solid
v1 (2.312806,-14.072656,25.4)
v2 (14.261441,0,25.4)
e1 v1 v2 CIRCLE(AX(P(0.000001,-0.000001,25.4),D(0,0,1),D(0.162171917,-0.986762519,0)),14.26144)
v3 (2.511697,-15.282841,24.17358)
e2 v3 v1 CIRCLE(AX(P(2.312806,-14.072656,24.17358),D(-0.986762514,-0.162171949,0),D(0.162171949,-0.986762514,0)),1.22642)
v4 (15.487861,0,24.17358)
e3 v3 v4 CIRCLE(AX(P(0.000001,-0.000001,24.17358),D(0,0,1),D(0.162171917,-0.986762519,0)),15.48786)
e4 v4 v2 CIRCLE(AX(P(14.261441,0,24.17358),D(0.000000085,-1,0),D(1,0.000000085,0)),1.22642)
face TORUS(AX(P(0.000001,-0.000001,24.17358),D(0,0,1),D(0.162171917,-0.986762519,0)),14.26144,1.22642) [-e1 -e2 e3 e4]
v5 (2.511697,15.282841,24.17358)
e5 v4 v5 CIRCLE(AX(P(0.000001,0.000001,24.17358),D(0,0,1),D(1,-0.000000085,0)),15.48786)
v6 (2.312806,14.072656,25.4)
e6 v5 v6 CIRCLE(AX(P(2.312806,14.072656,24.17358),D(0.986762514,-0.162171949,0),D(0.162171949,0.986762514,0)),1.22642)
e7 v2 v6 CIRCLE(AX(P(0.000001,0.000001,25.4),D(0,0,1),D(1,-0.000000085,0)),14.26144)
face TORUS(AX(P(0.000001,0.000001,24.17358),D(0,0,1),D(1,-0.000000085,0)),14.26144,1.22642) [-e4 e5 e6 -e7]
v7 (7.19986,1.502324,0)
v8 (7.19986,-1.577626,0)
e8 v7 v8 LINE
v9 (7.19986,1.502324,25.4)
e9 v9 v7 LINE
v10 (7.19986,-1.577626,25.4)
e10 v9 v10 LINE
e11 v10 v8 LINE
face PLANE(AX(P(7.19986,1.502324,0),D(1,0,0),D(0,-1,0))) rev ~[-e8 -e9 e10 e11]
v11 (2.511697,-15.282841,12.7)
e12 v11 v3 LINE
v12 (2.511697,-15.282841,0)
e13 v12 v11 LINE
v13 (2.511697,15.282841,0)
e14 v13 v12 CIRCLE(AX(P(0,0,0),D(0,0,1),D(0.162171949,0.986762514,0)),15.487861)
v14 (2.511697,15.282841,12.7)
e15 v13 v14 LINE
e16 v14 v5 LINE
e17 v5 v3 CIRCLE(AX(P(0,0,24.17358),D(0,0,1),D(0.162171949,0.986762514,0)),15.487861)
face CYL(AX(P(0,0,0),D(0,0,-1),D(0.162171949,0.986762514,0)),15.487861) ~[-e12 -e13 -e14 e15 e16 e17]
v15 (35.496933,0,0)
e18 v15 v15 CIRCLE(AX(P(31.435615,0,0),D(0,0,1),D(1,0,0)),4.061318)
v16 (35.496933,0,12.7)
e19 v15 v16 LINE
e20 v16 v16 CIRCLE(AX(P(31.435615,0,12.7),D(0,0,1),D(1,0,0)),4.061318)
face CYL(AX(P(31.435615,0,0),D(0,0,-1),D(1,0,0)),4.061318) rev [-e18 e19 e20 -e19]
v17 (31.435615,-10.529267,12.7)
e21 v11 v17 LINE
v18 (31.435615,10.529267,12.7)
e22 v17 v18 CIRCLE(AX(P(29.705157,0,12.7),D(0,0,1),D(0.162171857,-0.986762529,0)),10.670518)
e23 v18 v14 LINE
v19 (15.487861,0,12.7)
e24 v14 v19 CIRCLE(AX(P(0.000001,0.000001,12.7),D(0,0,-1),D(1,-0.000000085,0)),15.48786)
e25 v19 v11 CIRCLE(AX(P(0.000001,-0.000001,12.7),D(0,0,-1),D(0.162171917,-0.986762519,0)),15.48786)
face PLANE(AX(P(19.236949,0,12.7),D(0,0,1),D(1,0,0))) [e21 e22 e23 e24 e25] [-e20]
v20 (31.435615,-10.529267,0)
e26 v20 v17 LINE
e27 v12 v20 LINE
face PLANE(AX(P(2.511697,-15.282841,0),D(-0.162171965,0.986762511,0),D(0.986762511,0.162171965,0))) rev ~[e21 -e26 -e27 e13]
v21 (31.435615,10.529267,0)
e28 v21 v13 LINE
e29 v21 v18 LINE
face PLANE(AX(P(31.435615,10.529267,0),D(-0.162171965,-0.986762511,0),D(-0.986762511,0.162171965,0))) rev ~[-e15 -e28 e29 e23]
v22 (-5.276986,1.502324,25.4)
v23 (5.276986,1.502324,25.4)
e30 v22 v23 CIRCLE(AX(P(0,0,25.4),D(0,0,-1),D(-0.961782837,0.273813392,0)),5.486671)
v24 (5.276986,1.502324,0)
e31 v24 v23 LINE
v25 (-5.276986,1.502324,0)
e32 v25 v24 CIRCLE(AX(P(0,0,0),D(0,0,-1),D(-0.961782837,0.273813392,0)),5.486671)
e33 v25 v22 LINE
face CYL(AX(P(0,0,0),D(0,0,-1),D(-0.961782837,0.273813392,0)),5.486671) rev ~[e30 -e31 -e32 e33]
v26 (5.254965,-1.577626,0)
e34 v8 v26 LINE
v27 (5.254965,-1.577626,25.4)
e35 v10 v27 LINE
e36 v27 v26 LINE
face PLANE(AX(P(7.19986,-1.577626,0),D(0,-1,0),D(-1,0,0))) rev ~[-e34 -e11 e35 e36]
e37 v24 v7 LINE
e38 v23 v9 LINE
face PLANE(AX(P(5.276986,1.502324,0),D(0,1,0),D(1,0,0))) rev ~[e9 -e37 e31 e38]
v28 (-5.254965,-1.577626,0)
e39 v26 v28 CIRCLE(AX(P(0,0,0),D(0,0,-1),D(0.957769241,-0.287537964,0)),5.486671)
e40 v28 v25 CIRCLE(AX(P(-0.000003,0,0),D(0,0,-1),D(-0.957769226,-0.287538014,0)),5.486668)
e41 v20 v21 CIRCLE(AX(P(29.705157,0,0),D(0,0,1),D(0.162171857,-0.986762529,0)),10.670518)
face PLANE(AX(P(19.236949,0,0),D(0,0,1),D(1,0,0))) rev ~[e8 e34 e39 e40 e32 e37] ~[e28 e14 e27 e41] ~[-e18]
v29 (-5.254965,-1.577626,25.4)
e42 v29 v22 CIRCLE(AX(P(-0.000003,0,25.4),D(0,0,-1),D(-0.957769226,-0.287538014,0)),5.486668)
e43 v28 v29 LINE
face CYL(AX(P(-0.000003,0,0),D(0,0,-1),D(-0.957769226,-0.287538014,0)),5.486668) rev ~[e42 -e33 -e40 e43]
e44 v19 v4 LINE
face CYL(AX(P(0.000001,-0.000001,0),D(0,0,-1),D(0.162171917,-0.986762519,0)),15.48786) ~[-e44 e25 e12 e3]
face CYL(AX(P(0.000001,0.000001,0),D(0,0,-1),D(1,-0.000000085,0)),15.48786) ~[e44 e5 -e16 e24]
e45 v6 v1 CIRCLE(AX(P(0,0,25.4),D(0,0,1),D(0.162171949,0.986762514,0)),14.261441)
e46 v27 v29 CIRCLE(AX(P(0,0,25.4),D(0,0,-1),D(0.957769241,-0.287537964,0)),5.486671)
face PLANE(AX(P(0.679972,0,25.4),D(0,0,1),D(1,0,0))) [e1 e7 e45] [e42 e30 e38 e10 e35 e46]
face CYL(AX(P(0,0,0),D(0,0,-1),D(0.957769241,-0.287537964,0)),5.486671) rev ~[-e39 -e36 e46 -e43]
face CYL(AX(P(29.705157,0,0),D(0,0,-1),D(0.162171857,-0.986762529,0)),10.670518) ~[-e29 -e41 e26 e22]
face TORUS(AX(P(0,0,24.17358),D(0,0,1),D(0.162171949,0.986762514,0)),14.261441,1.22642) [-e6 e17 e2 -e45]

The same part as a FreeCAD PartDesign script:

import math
import FreeCAD as App
import Part
import Sketcher
from FreeCAD import Vector
Q = App.Units.Quantity


def edges_at(feature, points):
    """Names of the edges that pass closest to the given points."""
    edges = feature.Shape.Edges
    near = lambda p: min(range(len(edges)), key=lambda i: edges[i].distToShape(Part.Vertex(*p))[0])
    return sorted({f"Edge{near(p) + 1}" for p in points})

doc = App.newDocument("Part")
params = doc.addObject("Spreadsheet::Sheet", "Params")
for row, (alias, value) in enumerate([
    ("pad1_length", "0.5 in"),
    ("pad2_length", "1 in"),
    ("fillet_radius", "1.22642 mm"),
], start=1):
    params.set(f"A{row}", alias)
    params.set(f"B{row}", "=" + value)
    params.setAlias(f"B{row}", alias)

body = doc.addObject("PartDesign::Body", "Body")

sketch1 = body.newObject("Sketcher::SketchObject", "Sketch")
sketch1.AttachmentSupport = (doc.getObject("XY_Plane"), [""])
sketch1.MapMode = "FlatFace"
sketch1.addGeometry([
    Part.LineSegment(Vector(31.435615, 10.529267, 0), Vector(2.511697, 15.282841, 0)),
    Part.ArcOfCircle(Part.Circle(Vector(0, 0, 0), Vector(0, 0, 1), 15.487861), math.radians(80.667014), math.radians(279.332986)),
    Part.LineSegment(Vector(2.511697, -15.282841, 0), Vector(31.435615, -10.529267, 0)),
    Part.ArcOfCircle(Part.Circle(Vector(29.705157, 0, 0), Vector(0, 0, 1), 10.670518), math.radians(-80.667019), math.radians(80.667019)),
    Part.ArcOfCircle(Part.Circle(Vector(0, 0, 0), Vector(0, 0, 1), 5.486671), math.radians(-163.289385), math.radians(-16.710615)),
    Part.ArcOfCircle(Part.Circle(Vector(-0.000003, 0, 0), Vector(0, 0, 1), 5.486668), math.radians(164.108674), math.radians(196.710618)),
    Part.ArcOfCircle(Part.Circle(Vector(0, 0, 0), Vector(0, 0, 1), 5.486671), math.radians(15.891313), math.radians(164.108687)),
    Part.LineSegment(Vector(5.276986, 1.502324, 0), Vector(7.19986, 1.502324, 0)),
    Part.LineSegment(Vector(7.19986, 1.502324, 0), Vector(7.19986, -1.577626, 0)),
    Part.LineSegment(Vector(7.19986, -1.577626, 0), Vector(5.254965, -1.577626, 0)),
    Part.Circle(Vector(31.435615, 0, 0), Vector(0, 0, 1), 4.061318),
], False)
sketch1.addConstraint([
    Sketcher.Constraint("Coincident", 0, 2, 1, 1),
    Sketcher.Constraint("Coincident", 1, 2, 2, 1),
    Sketcher.Constraint("Coincident", 2, 2, 3, 1),
    Sketcher.Constraint("Coincident", 3, 2, 0, 1),
    Sketcher.Constraint("Coincident", 4, 1, 5, 2),
    Sketcher.Constraint("Coincident", 5, 1, 6, 2),
    Sketcher.Constraint("Coincident", 6, 1, 7, 1),
    Sketcher.Constraint("Coincident", 7, 2, 8, 1),
    Sketcher.Constraint("Coincident", 8, 2, 9, 1),
    Sketcher.Constraint("Coincident", 9, 2, 4, 2),
    Sketcher.Constraint("Horizontal", 7),
    Sketcher.Constraint("Vertical", 8),
    Sketcher.Constraint("Horizontal", 9),
    Sketcher.Constraint("Coincident", 1, 3, -1, 1),
    Sketcher.Constraint("Coincident", 4, 3, -1, 1),
    Sketcher.Constraint("Coincident", 5, 3, -1, 1),
    Sketcher.Constraint("Coincident", 6, 3, -1, 1),
    Sketcher.Constraint("PointOnObject", 3, 3, -1),
    Sketcher.Constraint("PointOnObject", 10, 3, -1),
    Sketcher.Constraint("Radius", 1, Q("15.487861 mm")),
    Sketcher.Constraint("Radius", 4, Q("5.486671 mm")),
    Sketcher.Constraint("Diameter", 10, Q("8.122636 mm")),
    Sketcher.Constraint("Radius", 3, Q("10.670518 mm")),
    Sketcher.Constraint("DistanceY", 8, 2, 8, 1, Q("3.07995 mm")),
    Sketcher.Constraint("DistanceX", 5, 3, 0, 2, Q("2.5117 mm")),
    Sketcher.Constraint("DistanceX", 5, 3, 1, 2, Q("2.5117 mm")),
    Sketcher.Constraint("DistanceX", 7, 1, 7, 2, Q("1.922874 mm")),
    Sketcher.Constraint("DistanceX", 9, 2, 9, 1, Q("1.944895 mm")),
    Sketcher.Constraint("DistanceX", 5, 3, 3, 3, Q("29.705161 mm")),
    Sketcher.Constraint("DistanceX", 5, 3, 10, 3, Q("31.435618 mm")),
    Sketcher.Constraint("DistanceX", 1, 2, 2, 2, Q("28.923918 mm")),
    Sketcher.Constraint("DistanceX", 0, 2, 3, 2, Q("28.923918 mm")),
    Sketcher.Constraint("DistanceX", 4, 1, 5, 3, Q("5.254962 mm")),
    Sketcher.Constraint("DistanceX", 5, 1, 4, 1, Q("0.022021 mm")),
])
pad1 = body.newObject("PartDesign::Pad", "Pad")
pad1.Profile = sketch1
pad1.setExpression("Length", "Params.pad1_length")

sketch2 = body.newObject("Sketcher::SketchObject", "Sketch001")
sketch2.AttachmentSupport = (doc.getObject("XY_Plane"), [""])
sketch2.MapMode = "FlatFace"
sketch2.addGeometry([
    Part.ArcOfCircle(Part.Circle(Vector(0, 0, 0), Vector(0, 0, 1), 15.5), math.radians(-81), math.radians(0)),
    Part.ArcOfCircle(Part.Circle(Vector(0, 0, 0), Vector(0, 0, 1), 15.5), math.radians(0), math.radians(81)),
    Part.ArcOfCircle(Part.Circle(Vector(0, 0, 0), Vector(0, 0, 1), 15.5), math.radians(81), math.radians(279)),
    Part.ArcOfCircle(Part.Circle(Vector(0, 0, 0), Vector(0, 0, 1), 5.5), math.radians(-163), math.radians(-17)),
    Part.ArcOfCircle(Part.Circle(Vector(0, 0, 0), Vector(0, 0, 1), 5.5), math.radians(164), math.radians(197)),
    Part.ArcOfCircle(Part.Circle(Vector(0, 0, 0), Vector(0, 0, 1), 5.5), math.radians(16), math.radians(164)),
    Part.LineSegment(Vector(5.3, 1.5, 0), Vector(7.2, 1.5, 0)),
    Part.LineSegment(Vector(7.2, 1.5, 0), Vector(7.2, -1.6, 0)),
    Part.LineSegment(Vector(7.2, -1.6, 0), Vector(5.3, -1.6, 0)),
], False)
sketch2.addConstraint([
    Sketcher.Constraint("Tangent", 0, 2, 1, 1),
    Sketcher.Constraint("Tangent", 1, 2, 2, 1),
    Sketcher.Constraint("Tangent", 2, 2, 0, 1),
    Sketcher.Constraint("Tangent", 3, 1, 4, 2),
    Sketcher.Constraint("Tangent", 4, 1, 5, 2),
    Sketcher.Constraint("Coincident", 5, 1, 6, 1),
    Sketcher.Constraint("Coincident", 6, 2, 7, 1),
    Sketcher.Constraint("Coincident", 7, 2, 8, 1),
    Sketcher.Constraint("Coincident", 8, 2, 3, 2),
    Sketcher.Constraint("Horizontal", 6),
    Sketcher.Constraint("Vertical", 7),
    Sketcher.Constraint("Horizontal", 8),
    Sketcher.Constraint("Coincident", 0, 3, -1, 1),
    Sketcher.Constraint("Coincident", 3, 3, -1, 1),
    Sketcher.Constraint("Coincident", 5, 3, -1, 1),
    Sketcher.Constraint("PointOnObject", 0, 2, -1),
    Sketcher.Constraint("Horizontal", 4, 1, 5, 1),
    Sketcher.Constraint("Horizontal", 3, 1, 7, 2),
    Sketcher.Constraint("Vertical", 1, 2, 2, 2),
    Sketcher.Constraint("Radius", 0, Q("15.48786 mm")),
    Sketcher.Constraint("Radius", 3, Q("5.486671 mm")),
    Sketcher.Constraint("DistanceY", 7, 2, 7, 1, Q("3.07995 mm")),
    Sketcher.Constraint("DistanceX", 4, 3, 1, 2, Q("2.5117 mm")),
    Sketcher.Constraint("DistanceX", 6, 1, 6, 2, Q("1.922874 mm")),
    Sketcher.Constraint("DistanceX", 8, 2, 8, 1, Q("1.944895 mm")),
])
pad2 = body.newObject("PartDesign::Pad", "Pad001")
pad2.Profile = sketch2
pad2.setExpression("Length", "Params.pad2_length")
doc.recompute()

fillet = body.newObject("PartDesign::Fillet", "Fillet")
fillet.Base = (pad2, edges_at(pad2, [(-15.488, 0, 25.4)]))
fillet.setExpression("Radius", "Params.fillet_radius")

doc.recompute()
